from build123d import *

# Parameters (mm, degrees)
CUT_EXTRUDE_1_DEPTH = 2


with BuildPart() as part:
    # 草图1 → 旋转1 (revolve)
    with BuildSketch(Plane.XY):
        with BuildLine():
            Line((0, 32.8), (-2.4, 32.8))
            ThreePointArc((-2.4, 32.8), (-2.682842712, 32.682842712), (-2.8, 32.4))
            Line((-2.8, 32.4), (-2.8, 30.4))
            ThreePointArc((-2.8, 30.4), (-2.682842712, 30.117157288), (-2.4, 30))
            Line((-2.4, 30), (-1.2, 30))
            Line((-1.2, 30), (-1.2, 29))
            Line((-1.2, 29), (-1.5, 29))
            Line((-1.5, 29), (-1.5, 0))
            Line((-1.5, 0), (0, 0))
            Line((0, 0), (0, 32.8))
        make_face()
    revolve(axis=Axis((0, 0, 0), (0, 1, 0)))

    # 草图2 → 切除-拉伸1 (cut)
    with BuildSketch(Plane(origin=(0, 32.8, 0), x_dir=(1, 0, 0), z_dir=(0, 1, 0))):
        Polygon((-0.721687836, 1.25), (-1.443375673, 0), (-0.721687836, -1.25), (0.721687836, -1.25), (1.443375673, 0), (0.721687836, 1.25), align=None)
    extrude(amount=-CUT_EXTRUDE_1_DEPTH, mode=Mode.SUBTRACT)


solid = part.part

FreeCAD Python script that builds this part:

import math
import FreeCAD as App
import Part
import Sketcher
Q = App.Units.Quantity

doc = App.newDocument("Part")
body = doc.addObject("PartDesign::Body", "Body")

# Sketch on XY plane
sketch1 = body.newObject("Sketcher::SketchObject", "Sketch")
sketch1.AttachmentSupport = (doc.getObject("XY_Plane"), [""])
sketch1.MapMode = "FlatFace"
sketch1.addGeometry(Part.LineSegment(App.Vector(0, 32.8, 0), App.Vector(-2.4, 32.8, 0)), False)
sketch1.addGeometry(Part.ArcOfCircle(Part.Circle(App.Vector(-2.4, 32.4, 0), App.Vector(0, 0, 1), 0.4), math.radians(90), math.radians(180)), False)
sketch1.addGeometry(Part.LineSegment(App.Vector(-2.8, 32.4, 0), App.Vector(-2.8, 30.4, 0)), False)
sketch1.addGeometry(Part.ArcOfCircle(Part.Circle(App.Vector(-2.4, 30.4, 0), App.Vector(0, 0, 1), 0.4), math.radians(-180), math.radians(-90)), False)
sketch1.addGeometry(Part.LineSegment(App.Vector(-2.4, 30, 0), App.Vector(-1.2, 30, 0)), False)
sketch1.addGeometry(Part.LineSegment(App.Vector(-1.2, 30, 0), App.Vector(-1.2, 29, 0)), False)
sketch1.addGeometry(Part.LineSegment(App.Vector(-1.2, 29, 0), App.Vector(-1.5, 29, 0)), False)
sketch1.addGeometry(Part.LineSegment(App.Vector(-1.5, 29, 0), App.Vector(-1.5, 0, 0)), False)
sketch1.addGeometry(Part.LineSegment(App.Vector(-1.5, 0, 0), App.Vector(0, 0, 0)), False)
sketch1.addGeometry(Part.LineSegment(App.Vector(0, 0, 0), App.Vector(0, 32.8, 0)), False)
sketch1.addConstraint(Sketcher.Constraint("Tangent", 0, 2, 1, 1))
sketch1.addConstraint(Sketcher.Constraint("Tangent", 1, 2, 2, 1))
sketch1.addConstraint(Sketcher.Constraint("Tangent", 2, 2, 3, 1))
sketch1.addConstraint(Sketcher.Constraint("Tangent", 3, 2, 4, 1))
sketch1.addConstraint(Sketcher.Constraint("Coincident", 4, 2, 5, 1))
sketch1.addConstraint(Sketcher.Constraint("Coincident", 5, 2, 6, 1))
sketch1.addConstraint(Sketcher.Constraint("Coincident", 6, 2, 7, 1))
sketch1.addConstraint(Sketcher.Constraint("Coincident", 7, 2, 8, 1))
sketch1.addConstraint(Sketcher.Constraint("Coincident", 8, 2, 9, 1))
sketch1.addConstraint(Sketcher.Constraint("Coincident", 9, 2, 0, 1))
sketch1.addConstraint(Sketcher.Constraint("Horizontal", 0))
sketch1.addConstraint(Sketcher.Constraint("Vertical", 2))
sketch1.addConstraint(Sketcher.Constraint("Horizontal", 4))
sketch1.addConstraint(Sketcher.Constraint("Vertical", 5))
sketch1.addConstraint(Sketcher.Constraint("Horizontal", 6))
sketch1.addConstraint(Sketcher.Constraint("Vertical", 7))
sketch1.addConstraint(Sketcher.Constraint("Horizontal", 8))
sketch1.addConstraint(Sketcher.Constraint("Vertical", 9))
sketch1.addConstraint(Sketcher.Constraint("Coincident", 8, 2, -1, 1))
sketch1.addConstraint(Sketcher.Constraint("Equal", 1, 3))
sketch1.addConstraint(Sketcher.Constraint("Radius", 1, 0.4))
sketch1.addConstraint(Sketcher.Constraint("DistanceY", 2, 2, 2, 1, 2.0))
sketch1.addConstraint(Sketcher.Constraint("DistanceY", 5, 2, 5, 1, 1.0))
sketch1.addConstraint(Sketcher.Constraint("DistanceY", 7, 2, 7, 1, 29.0))
sketch1.addConstraint(Sketcher.Constraint("DistanceX", 0, 2, 0, 1, 2.4))
sketch1.addConstraint(Sketcher.Constraint("DistanceX", 4, 1, 4, 2, 1.2))
sketch1.addConstraint(Sketcher.Constraint("DistanceX", 6, 2, 6, 1, 0.3))
revolution = body.newObject("PartDesign::Revolution", "Revolution")
revolution.Profile = sketch1
revolution.ReferenceAxis = (sketch1, ["V_Axis"])
revolution.Angle = 360

# Sketch on XZ plane
sketch2 = body.newObject("Sketcher::SketchObject", "Sketch001")
sketch2.AttachmentSupport = (doc.getObject("XZ_Plane"), [""])
sketch2.MapMode = "FlatFace"
sketch2.AttachmentOffset = App.Placement(App.Vector(0, 0, -32.8), App.Rotation())
sketch2.addGeometry(Part.LineSegment(App.Vector(-0.7, -1.2, 0), App.Vector(-1.4, 0, 0)), False)
sketch2.addGeometry(Part.LineSegment(App.Vector(-1.4, 0, 0), App.Vector(-0.7, 1.2, 0)), False)
sketch2.addGeometry(Part.LineSegment(App.Vector(-0.7, 1.2, 0), App.Vector(0.7, 1.2, 0)), False)
sketch2.addGeometry(Part.LineSegment(App.Vector(0.7, 1.2, 0), App.Vector(1.4, 0, 0)), False)
sketch2.addGeometry(Part.LineSegment(App.Vector(1.4, 0, 0), App.Vector(0.7, -1.2, 0)), False)
sketch2.addGeometry(Part.LineSegment(App.Vector(0.7, -1.2, 0), App.Vector(-0.7, -1.2, 0)), False)
sketch2.addConstraint(Sketcher.Constraint("Coincident", 0, 2, 1, 1))
sketch2.addConstraint(Sketcher.Constraint("Coincident", 1, 2, 2, 1))
sketch2.addConstraint(Sketcher.Constraint("Coincident", 2, 2, 3, 1))
sketch2.addConstraint(Sketcher.Constraint("Coincident", 3, 2, 4, 1))
sketch2.addConstraint(Sketcher.Constraint("Coincident", 4, 2, 5, 1))
sketch2.addConstraint(Sketcher.Constraint("Coincident", 5, 2, 0, 1))
sketch2.addConstraint(Sketcher.Constraint("Horizontal", 2))
sketch2.addConstraint(Sketcher.Constraint("Horizontal", 5))
sketch2.addConstraint(Sketcher.Constraint("Symmetric", 0, 2, 3, 2, -1, 1))
sketch2.addConstraint(Sketcher.Constraint("Symmetric", 1, 2, 4, 2, -1, 1))
sketch2.addConstraint(Sketcher.Constraint("PointOnObject", 0, 2, -1))
sketch2.addConstraint(Sketcher.Constraint("Parallel", 0, 3))
sketch2.addConstraint(Sketcher.Constraint("Vertical", 2, 2, 4, 2))
sketch2.addConstraint(Sketcher.Constraint("Angle", 0, Q("120 deg")))
sketch2.addConstraint(Sketcher.Constraint("DistanceY", 4, 2, 2, 2, 2.5))
sketch2.addConstraint(Sketcher.Constraint("DistanceX", 2, 1, 2, 2, 1.443376))
pocket1 = body.newObject("PartDesign::Pocket", "Pocket")
pocket1.Profile = sketch2
pocket1.Length = 2
pocket1.Reversed = True

doc.recompute()
